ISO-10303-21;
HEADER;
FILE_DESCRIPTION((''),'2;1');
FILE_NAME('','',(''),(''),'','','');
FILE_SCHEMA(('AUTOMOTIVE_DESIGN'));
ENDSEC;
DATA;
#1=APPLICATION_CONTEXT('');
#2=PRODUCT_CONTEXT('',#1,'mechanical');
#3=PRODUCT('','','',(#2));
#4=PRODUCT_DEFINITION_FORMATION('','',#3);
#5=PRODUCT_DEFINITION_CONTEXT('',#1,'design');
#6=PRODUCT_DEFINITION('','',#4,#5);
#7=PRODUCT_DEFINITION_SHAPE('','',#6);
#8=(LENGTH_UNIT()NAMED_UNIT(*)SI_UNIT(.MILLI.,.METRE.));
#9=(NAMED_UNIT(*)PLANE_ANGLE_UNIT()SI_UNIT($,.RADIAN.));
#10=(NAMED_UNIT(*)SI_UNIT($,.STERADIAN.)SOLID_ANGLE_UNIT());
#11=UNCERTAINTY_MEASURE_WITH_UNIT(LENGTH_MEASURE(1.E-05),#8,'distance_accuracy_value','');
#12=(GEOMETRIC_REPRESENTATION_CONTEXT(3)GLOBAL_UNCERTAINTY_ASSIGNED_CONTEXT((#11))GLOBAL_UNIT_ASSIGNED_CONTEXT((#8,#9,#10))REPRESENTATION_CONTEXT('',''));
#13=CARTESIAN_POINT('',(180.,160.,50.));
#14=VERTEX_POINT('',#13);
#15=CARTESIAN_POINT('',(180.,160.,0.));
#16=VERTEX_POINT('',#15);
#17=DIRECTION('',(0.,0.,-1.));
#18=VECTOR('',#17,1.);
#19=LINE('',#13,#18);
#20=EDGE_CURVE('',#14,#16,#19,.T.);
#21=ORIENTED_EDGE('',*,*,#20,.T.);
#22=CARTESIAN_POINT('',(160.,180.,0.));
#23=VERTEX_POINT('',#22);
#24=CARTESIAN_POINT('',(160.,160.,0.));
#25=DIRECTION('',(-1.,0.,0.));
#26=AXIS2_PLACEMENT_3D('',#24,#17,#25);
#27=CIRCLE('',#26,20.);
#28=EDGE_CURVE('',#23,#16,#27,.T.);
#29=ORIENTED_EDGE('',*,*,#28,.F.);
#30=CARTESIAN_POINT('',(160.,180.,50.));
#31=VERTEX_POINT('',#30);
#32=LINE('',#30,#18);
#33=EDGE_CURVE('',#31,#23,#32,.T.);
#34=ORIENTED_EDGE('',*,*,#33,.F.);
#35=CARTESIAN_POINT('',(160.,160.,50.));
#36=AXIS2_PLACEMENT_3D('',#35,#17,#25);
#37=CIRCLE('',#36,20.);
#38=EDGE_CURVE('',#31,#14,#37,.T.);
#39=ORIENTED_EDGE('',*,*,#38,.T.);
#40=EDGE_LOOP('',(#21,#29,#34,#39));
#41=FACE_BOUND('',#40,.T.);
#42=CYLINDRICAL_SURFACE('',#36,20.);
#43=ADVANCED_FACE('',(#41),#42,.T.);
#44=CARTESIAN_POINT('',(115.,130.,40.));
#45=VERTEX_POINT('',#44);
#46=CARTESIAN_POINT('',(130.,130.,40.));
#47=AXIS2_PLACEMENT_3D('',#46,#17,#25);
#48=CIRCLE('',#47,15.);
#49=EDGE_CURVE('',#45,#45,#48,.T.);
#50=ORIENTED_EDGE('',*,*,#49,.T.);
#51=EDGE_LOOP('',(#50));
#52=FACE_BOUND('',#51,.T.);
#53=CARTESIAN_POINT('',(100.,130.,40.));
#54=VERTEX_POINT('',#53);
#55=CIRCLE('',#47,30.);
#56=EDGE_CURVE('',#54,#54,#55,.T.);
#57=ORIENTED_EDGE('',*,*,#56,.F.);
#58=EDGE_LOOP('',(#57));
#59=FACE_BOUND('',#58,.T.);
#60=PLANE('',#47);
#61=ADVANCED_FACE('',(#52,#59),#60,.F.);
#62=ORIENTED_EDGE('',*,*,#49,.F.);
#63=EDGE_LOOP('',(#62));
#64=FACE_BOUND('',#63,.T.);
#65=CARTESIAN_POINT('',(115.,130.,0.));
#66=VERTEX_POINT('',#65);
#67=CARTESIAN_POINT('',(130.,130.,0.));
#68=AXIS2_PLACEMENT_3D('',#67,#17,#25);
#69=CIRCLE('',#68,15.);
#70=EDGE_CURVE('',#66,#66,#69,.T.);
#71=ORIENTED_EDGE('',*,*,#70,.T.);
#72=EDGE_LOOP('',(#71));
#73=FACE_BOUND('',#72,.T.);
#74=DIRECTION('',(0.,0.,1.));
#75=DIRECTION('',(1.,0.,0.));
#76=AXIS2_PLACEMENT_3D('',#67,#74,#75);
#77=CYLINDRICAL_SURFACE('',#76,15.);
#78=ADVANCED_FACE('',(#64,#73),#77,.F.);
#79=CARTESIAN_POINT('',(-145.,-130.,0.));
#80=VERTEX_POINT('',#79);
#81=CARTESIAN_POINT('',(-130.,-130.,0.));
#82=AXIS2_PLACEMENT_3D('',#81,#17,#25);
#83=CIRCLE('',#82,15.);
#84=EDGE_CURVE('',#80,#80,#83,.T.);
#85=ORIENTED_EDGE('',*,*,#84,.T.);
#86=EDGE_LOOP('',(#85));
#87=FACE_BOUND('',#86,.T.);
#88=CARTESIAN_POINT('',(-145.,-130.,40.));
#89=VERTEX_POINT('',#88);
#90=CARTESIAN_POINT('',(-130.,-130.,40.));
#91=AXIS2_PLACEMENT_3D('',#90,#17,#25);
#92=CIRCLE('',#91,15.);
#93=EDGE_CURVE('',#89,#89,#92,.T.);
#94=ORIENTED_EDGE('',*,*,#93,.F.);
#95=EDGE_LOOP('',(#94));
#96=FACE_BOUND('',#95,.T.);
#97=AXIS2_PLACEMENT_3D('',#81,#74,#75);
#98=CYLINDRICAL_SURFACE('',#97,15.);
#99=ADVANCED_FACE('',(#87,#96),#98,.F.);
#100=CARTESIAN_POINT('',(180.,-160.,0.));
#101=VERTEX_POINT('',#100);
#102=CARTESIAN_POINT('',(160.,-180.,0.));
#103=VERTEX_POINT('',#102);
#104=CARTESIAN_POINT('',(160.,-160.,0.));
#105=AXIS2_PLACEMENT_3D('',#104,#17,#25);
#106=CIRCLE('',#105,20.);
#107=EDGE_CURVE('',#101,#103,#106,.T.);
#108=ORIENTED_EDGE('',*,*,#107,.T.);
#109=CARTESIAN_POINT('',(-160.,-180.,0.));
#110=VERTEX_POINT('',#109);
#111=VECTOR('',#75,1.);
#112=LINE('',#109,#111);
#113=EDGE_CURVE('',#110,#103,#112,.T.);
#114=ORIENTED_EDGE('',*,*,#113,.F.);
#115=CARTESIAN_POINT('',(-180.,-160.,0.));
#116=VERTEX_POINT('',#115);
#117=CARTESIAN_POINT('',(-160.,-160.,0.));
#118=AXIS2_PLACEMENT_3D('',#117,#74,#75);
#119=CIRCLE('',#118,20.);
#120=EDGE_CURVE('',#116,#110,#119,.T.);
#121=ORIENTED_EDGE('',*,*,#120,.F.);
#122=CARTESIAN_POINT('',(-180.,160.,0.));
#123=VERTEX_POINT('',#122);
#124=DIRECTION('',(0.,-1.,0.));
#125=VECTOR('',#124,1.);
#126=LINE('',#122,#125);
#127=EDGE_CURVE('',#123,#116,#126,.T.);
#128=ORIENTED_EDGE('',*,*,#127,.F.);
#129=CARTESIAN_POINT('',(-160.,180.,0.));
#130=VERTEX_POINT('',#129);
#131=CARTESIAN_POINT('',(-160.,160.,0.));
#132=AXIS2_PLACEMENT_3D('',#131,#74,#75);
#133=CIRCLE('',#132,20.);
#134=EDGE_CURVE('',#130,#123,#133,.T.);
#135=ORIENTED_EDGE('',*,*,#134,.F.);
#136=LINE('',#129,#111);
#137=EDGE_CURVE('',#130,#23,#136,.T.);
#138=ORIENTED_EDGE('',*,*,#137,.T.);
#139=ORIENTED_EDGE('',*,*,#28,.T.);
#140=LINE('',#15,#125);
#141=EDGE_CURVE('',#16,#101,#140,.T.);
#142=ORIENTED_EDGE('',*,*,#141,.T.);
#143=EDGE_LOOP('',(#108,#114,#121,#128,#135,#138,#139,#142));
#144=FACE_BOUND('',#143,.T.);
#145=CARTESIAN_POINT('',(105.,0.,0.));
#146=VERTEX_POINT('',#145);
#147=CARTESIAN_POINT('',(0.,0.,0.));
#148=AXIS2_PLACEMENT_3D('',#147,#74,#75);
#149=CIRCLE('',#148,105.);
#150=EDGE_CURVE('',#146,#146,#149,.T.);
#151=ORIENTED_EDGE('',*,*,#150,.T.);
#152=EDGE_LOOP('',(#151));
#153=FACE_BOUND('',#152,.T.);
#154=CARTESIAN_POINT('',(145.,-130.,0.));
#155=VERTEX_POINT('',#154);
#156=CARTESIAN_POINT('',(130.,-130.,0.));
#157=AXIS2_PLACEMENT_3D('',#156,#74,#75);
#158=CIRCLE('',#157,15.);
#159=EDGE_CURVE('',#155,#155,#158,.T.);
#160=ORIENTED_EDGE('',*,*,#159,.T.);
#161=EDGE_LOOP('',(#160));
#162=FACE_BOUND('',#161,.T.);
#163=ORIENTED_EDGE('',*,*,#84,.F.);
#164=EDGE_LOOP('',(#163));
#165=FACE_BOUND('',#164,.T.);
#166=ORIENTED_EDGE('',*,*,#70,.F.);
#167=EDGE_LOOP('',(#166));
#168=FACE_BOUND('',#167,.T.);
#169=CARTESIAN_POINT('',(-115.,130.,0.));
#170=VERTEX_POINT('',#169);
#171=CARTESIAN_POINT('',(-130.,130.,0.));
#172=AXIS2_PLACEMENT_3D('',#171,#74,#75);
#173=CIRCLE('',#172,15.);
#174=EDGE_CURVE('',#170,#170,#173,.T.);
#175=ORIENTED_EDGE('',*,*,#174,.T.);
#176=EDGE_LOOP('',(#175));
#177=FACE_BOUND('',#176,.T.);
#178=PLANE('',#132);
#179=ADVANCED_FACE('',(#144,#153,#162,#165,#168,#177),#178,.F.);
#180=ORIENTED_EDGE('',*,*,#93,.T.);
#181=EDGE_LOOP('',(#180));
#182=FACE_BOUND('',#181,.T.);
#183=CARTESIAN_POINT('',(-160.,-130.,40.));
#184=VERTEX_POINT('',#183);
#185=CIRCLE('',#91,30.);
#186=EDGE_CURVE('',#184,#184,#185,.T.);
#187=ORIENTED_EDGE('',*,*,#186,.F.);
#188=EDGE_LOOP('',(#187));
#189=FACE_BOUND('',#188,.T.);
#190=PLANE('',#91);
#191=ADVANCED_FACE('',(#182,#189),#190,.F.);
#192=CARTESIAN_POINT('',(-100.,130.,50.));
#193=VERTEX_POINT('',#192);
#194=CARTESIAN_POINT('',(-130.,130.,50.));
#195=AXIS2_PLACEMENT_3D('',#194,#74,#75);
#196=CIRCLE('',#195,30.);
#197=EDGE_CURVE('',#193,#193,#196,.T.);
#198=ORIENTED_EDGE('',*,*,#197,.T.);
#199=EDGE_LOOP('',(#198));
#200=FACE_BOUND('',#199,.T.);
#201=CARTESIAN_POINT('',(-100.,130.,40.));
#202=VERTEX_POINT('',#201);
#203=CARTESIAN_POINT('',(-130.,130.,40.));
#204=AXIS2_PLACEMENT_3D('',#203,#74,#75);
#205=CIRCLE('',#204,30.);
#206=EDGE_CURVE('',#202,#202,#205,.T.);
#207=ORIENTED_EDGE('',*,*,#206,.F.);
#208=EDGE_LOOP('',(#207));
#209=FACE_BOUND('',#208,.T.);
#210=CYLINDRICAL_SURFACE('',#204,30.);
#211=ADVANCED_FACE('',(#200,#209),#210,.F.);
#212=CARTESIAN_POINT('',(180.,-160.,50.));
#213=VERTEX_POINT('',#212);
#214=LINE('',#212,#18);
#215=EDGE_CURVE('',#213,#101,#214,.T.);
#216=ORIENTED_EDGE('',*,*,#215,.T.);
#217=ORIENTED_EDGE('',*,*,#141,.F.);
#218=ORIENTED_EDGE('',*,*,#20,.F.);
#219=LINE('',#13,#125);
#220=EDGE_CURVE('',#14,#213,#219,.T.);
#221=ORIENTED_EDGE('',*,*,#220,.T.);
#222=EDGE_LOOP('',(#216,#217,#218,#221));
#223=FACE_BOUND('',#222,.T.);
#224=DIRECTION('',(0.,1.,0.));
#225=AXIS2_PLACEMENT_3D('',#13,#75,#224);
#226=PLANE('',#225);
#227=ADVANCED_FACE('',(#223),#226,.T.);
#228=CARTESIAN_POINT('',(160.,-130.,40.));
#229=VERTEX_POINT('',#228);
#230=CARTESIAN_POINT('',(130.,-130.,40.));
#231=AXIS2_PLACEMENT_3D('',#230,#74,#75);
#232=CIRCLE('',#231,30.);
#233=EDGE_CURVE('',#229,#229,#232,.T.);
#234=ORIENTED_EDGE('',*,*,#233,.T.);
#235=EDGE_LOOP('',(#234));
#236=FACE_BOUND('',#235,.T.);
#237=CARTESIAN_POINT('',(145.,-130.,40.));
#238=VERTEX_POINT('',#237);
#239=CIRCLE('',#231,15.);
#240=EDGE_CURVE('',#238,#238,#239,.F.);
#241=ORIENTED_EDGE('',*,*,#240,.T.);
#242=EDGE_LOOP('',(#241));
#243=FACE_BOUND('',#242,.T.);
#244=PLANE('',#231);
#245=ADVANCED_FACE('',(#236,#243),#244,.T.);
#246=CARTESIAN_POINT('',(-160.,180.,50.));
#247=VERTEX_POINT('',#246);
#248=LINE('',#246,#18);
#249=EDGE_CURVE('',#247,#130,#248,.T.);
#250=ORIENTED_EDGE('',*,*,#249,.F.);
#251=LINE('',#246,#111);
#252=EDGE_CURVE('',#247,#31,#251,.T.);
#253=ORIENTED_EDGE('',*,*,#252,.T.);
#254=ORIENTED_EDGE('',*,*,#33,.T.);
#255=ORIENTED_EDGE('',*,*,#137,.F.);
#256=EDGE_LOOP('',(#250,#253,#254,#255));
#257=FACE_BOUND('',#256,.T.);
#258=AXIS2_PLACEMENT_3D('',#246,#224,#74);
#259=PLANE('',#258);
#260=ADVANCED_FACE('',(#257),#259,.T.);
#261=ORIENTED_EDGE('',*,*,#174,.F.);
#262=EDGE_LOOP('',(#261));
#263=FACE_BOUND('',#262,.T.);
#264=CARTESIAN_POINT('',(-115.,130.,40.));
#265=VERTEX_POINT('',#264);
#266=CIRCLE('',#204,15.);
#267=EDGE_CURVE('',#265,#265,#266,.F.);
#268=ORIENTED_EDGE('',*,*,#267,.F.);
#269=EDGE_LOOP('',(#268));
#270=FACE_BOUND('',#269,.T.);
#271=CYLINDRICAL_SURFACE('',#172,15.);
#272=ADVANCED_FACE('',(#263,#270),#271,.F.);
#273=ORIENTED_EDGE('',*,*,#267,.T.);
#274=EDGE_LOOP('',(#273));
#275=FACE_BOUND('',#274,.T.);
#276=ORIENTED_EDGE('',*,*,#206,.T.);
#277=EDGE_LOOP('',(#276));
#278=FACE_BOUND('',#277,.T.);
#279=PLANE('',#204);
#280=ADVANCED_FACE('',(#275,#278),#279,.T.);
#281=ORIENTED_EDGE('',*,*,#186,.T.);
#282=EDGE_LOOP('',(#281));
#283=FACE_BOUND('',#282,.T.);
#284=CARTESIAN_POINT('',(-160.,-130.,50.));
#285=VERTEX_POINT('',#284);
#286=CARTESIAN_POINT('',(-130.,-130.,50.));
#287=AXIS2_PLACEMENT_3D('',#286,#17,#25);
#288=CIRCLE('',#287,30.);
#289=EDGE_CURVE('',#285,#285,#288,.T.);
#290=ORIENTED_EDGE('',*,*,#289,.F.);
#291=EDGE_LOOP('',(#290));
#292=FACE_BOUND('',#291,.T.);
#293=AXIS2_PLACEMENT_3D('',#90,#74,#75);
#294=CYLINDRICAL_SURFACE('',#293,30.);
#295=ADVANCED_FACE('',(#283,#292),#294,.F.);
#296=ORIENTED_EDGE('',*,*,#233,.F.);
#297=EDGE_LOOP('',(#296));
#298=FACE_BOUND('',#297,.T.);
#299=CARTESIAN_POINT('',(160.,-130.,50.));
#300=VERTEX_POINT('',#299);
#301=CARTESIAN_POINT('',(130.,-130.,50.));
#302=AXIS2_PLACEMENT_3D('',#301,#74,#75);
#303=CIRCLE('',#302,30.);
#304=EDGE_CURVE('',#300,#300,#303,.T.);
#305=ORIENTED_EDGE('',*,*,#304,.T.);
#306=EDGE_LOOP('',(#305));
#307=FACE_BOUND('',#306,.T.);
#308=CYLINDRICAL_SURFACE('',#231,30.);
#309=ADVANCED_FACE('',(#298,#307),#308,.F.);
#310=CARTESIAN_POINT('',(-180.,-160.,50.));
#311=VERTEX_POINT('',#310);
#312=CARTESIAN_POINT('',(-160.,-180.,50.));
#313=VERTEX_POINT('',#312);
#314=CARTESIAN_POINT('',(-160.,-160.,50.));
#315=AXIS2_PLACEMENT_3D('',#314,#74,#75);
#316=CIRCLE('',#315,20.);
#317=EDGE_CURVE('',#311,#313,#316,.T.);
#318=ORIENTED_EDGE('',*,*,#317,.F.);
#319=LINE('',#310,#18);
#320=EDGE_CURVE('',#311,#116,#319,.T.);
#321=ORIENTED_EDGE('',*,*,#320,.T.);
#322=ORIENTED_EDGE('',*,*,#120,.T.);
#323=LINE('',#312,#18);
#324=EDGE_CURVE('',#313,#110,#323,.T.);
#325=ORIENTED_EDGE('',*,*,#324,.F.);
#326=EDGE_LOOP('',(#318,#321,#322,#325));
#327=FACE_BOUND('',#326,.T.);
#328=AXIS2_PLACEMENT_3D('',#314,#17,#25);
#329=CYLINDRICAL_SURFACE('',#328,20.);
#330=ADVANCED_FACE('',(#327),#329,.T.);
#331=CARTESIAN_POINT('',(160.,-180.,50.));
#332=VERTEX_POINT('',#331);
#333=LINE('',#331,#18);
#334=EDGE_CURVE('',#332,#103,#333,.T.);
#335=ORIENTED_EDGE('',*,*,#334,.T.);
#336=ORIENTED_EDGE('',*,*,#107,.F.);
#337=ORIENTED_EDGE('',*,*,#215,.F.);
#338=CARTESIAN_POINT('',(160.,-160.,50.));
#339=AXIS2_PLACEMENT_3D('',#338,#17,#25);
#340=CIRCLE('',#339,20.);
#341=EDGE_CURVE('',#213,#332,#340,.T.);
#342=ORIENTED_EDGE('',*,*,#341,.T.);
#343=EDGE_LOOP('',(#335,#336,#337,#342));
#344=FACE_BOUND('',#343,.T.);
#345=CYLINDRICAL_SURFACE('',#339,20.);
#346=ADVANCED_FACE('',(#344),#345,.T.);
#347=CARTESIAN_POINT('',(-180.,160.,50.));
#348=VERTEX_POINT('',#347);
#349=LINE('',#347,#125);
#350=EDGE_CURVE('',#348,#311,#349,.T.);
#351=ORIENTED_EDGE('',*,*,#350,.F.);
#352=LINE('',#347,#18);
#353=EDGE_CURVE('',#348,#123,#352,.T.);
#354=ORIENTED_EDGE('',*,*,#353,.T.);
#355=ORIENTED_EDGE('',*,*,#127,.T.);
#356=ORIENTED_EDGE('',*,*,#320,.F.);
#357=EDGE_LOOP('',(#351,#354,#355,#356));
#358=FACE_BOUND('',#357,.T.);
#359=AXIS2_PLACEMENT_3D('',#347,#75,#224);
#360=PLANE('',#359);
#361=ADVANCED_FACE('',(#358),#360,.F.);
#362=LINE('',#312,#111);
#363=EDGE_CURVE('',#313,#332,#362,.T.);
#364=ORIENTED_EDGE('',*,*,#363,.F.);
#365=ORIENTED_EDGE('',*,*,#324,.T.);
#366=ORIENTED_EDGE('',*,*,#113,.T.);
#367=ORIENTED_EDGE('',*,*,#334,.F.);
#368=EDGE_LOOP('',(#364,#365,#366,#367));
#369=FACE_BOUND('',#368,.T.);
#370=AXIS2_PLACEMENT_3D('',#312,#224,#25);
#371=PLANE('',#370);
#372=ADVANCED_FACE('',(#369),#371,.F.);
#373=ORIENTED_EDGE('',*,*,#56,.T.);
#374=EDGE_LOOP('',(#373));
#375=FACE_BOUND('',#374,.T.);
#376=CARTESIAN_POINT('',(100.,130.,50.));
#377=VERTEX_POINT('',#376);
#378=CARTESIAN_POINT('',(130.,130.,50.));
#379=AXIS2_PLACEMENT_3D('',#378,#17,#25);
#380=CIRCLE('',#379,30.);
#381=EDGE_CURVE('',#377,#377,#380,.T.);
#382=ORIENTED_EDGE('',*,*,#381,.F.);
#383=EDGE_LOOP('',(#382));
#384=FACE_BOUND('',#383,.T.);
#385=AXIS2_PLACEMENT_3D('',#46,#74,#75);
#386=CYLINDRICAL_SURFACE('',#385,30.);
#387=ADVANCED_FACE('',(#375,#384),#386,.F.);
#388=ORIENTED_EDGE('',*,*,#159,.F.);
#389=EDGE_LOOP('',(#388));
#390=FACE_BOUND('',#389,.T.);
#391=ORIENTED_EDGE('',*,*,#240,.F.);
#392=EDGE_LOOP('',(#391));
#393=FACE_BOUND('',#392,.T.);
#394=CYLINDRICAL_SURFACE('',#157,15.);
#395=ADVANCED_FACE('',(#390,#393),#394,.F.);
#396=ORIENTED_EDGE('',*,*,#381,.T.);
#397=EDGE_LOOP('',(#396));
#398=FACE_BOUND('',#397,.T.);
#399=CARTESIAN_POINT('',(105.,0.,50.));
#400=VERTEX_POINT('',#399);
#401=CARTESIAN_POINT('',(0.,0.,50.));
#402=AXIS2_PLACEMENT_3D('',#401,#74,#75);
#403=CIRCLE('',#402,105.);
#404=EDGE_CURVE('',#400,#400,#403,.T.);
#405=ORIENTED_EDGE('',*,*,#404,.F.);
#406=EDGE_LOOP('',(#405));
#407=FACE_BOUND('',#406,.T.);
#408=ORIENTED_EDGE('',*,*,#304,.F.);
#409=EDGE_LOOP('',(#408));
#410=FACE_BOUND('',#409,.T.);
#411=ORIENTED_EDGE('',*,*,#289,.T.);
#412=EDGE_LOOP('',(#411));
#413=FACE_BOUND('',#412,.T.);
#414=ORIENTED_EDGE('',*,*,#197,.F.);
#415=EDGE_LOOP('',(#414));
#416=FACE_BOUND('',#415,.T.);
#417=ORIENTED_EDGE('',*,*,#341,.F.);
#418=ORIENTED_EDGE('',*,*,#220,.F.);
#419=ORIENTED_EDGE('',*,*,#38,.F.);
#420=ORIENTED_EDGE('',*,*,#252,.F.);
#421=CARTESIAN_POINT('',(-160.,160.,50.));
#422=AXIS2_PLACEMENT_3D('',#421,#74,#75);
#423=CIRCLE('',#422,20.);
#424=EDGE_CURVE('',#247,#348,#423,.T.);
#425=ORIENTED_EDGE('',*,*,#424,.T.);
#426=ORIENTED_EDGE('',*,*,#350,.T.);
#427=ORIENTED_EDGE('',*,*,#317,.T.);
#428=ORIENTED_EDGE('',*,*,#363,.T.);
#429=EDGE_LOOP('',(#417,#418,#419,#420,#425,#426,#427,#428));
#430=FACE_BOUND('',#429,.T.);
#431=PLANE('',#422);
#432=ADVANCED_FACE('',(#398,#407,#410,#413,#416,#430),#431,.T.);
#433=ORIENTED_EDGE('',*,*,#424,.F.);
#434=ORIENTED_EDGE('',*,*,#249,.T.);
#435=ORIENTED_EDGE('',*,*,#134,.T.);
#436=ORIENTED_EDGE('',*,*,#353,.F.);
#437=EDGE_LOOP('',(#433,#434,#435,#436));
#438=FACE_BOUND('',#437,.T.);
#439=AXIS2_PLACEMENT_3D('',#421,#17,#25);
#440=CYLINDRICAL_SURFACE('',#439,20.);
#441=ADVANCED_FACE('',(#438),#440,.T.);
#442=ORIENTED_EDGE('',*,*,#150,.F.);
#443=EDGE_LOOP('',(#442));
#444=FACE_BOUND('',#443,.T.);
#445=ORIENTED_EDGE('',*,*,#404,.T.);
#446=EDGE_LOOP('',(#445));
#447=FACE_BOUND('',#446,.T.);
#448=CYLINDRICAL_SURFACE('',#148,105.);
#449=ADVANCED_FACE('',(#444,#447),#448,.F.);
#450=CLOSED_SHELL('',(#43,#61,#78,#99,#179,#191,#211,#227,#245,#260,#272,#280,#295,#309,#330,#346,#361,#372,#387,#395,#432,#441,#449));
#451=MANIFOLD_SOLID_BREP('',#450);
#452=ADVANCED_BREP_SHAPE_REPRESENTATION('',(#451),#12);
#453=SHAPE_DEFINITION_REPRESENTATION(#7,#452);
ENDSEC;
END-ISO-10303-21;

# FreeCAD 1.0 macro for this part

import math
import FreeCAD as App
import Part
import Sketcher
from FreeCAD import Vector

doc = App.newDocument("Part")
body = doc.addObject("PartDesign::Body", "Body")

# Sketch on XY plane
sketch1 = body.newObject("Sketcher::SketchObject", "Sketch")
sketch1.AttachmentSupport = (doc.getObject("XY_Plane"), [""])
sketch1.MapMode = "FlatFace"
sketch1.addGeometry(Part.LineSegment(Vector(160, 180, 0), Vector(-160, 180, 0)), False)
sketch1.addGeometry(Part.ArcOfCircle(Part.Circle(Vector(-160, 160, 0), Vector(0, 0, 1), 20), math.radians(90), math.radians(180)), False)
sketch1.addGeometry(Part.LineSegment(Vector(-180, 160, 0), Vector(-180, -160, 0)), False)
sketch1.addGeometry(Part.ArcOfCircle(Part.Circle(Vector(-160, -160, 0), Vector(0, 0, 1), 20), math.radians(180), math.radians(270)), False)
sketch1.addGeometry(Part.LineSegment(Vector(-160, -180, 0), Vector(160, -180, 0)), False)
sketch1.addGeometry(Part.ArcOfCircle(Part.Circle(Vector(160, -160, 0), Vector(0, 0, 1), 20), math.radians(-90), math.radians(0)), False)
sketch1.addGeometry(Part.LineSegment(Vector(180, -160, 0), Vector(180, 160, 0)), False)
sketch1.addGeometry(Part.ArcOfCircle(Part.Circle(Vector(160, 160, 0), Vector(0, 0, 1), 20), math.radians(0), math.radians(90)), False)
sketch1.addConstraint(Sketcher.Constraint("Tangent", 0, 2, 1, 1))
sketch1.addConstraint(Sketcher.Constraint("Tangent", 1, 2, 2, 1))
sketch1.addConstraint(Sketcher.Constraint("Tangent", 2, 2, 3, 1))
sketch1.addConstraint(Sketcher.Constraint("Tangent", 3, 2, 4, 1))
sketch1.addConstraint(Sketcher.Constraint("Tangent", 4, 2, 5, 1))
sketch1.addConstraint(Sketcher.Constraint("Tangent", 5, 2, 6, 1))
sketch1.addConstraint(Sketcher.Constraint("Tangent", 6, 2, 7, 1))
sketch1.addConstraint(Sketcher.Constraint("Tangent", 7, 2, 0, 1))
sketch1.addConstraint(Sketcher.Constraint("Horizontal", 0))
sketch1.addConstraint(Sketcher.Constraint("Vertical", 2))
sketch1.addConstraint(Sketcher.Constraint("Horizontal", 4))
sketch1.addConstraint(Sketcher.Constraint("Vertical", 6))
sketch1.addConstraint(Sketcher.Constraint("Equal", 1, 3))
sketch1.addConstraint(Sketcher.Constraint("Equal", 3, 5))
sketch1.addConstraint(Sketcher.Constraint("Equal", 5, 7))
sketch1.addConstraint(Sketcher.Constraint("Symmetric", 1, 3, 5, 3, -1, 1))
sketch1.addConstraint(Sketcher.Constraint("Equal", 4, 2))
sketch1.addConstraint(Sketcher.Constraint("Radius", 1, 20.0))
sketch1.addConstraint(Sketcher.Constraint("DistanceX", 0, 2, 0, 1, 320.0))
pad1 = body.newObject("PartDesign::Pad", "Pad")
pad1.Profile = sketch1
pad1.Length = 50

# Sketch on XY plane
sketch2 = body.newObject("Sketcher::SketchObject", "Sketch001")
sketch2.AttachmentSupport = (doc.getObject("XY_Plane"), [""])
sketch2.MapMode = "FlatFace"
sketch2.AttachmentOffset = App.Placement(Vector(0, 0, 50), App.Rotation())
sketch2.addGeometry(Part.Circle(Vector(0, 0, 0), Vector(0, 0, 1), 105), False)
sketch2.addConstraint(Sketcher.Constraint("Coincident", 0, 3, -1, 1))
sketch2.addConstraint(Sketcher.Constraint("Diameter", 0, 210.0))
pocket1 = body.newObject("PartDesign::Pocket", "Pocket")
pocket1.Profile = sketch2
pocket1.Length = 50

# Sketch on XY plane
sketch3 = body.newObject("Sketcher::SketchObject", "Sketch002")
sketch3.AttachmentSupport = (doc.getObject("XY_Plane"), [""])
sketch3.MapMode = "FlatFace"
sketch3.AttachmentOffset = App.Placement(Vector(0, 0, 50), App.Rotation())
sketch3.addGeometry(Part.Circle(Vector(-130, 130, 0), Vector(0, 0, 1), 15), False)
sketch3.addGeometry(Part.Circle(Vector(-130, -130, 0), Vector(0, 0, 1), 15), False)
sketch3.addGeometry(Part.Circle(Vector(130, -130, 0), Vector(0, 0, 1), 15), False)
sketch3.addGeometry(Part.Circle(Vector(130, 130, 0), Vector(0, 0, 1), 15), False)
sketch3.addConstraint(Sketcher.Constraint("Equal", 0, 1))
sketch3.addConstraint(Sketcher.Constraint("Equal", 1, 2))
sketch3.addConstraint(Sketcher.Constraint("Equal", 2, 3))
sketch3.addConstraint(Sketcher.Constraint("Symmetric", 0, 3, 2, 3, -1, 1))
sketch3.addConstraint(Sketcher.Constraint("Symmetric", 1, 3, 3, 3, -1, 1))
sketch3.addConstraint(Sketcher.Constraint("Symmetric", 1, 3, 2, 3, -2))
sketch3.addConstraint(Sketcher.Constraint("Diameter", 0, 30.0))
sketch3.addConstraint(Sketcher.Constraint("DistanceX", 0, 3, -1, 1, 130.0))
sketch3.addConstraint(Sketcher.Constraint("DistanceY", -1, 1, 0, 3, 130.0))
pocket2 = body.newObject("PartDesign::Pocket", "Pocket001")
pocket2.Profile = sketch3
pocket2.Length = 50

# Sketch on XY plane
sketch4 = body.newObject("Sketcher::SketchObject", "Sketch003")
sketch4.AttachmentSupport = (doc.getObject("XY_Plane"), [""])
sketch4.MapMode = "FlatFace"
sketch4.AttachmentOffset = App.Placement(Vector(0, 0, 50), App.Rotation())
sketch4.addGeometry(Part.Circle(Vector(-130, 130, 0), Vector(0, 0, 1), 30), False)
sketch4.addGeometry(Part.Circle(Vector(130, 130, 0), Vector(0, 0, 1), 30), False)
sketch4.addGeometry(Part.Circle(Vector(130, -130, 0), Vector(0, 0, 1), 30), False)
sketch4.addGeometry(Part.Circle(Vector(-130, -130, 0), Vector(0, 0, 1), 30), False)
sketch4.addConstraint(Sketcher.Constraint("Equal", 0, 1))
sketch4.addConstraint(Sketcher.Constraint("Equal", 1, 2))
sketch4.addConstraint(Sketcher.Constraint("Equal", 2, 3))
sketch4.addConstraint(Sketcher.Constraint("Symmetric", 0, 3, 2, 3, -1, 1))
sketch4.addConstraint(Sketcher.Constraint("Symmetric", 1, 3, 3, 3, -1, 1))
sketch4.addConstraint(Sketcher.Constraint("Symmetric", 0, 3, 1, 3, -2))
sketch4.addConstraint(Sketcher.Constraint("Diameter", 0, 60.0))
sketch4.addConstraint(Sketcher.Constraint("DistanceX", 0, 3, -1, 1, 130.0))
sketch4.addConstraint(Sketcher.Constraint("DistanceY", -1, 1, 0, 3, 130.0))
pocket3 = body.newObject("PartDesign::Pocket", "Pocket002")
pocket3.Profile = sketch4
pocket3.Length = 10

doc.recompute()
